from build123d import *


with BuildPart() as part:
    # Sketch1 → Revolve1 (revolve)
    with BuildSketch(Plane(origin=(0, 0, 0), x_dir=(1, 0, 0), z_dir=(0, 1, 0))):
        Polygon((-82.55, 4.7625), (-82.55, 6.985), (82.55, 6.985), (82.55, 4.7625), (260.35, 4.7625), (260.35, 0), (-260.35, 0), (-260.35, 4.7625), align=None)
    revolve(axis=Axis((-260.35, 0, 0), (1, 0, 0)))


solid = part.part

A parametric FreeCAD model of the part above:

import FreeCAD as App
import Part
import Sketcher
Q = App.Units.Quantity

doc = App.newDocument("Part")
params = doc.addObject("Spreadsheet::Sheet", "Params")
for row, (alias, value) in enumerate([
    ("sketch1_width", "7 in"),
    ("sketch1_width2", "20.5 in"),
    ("sketch1_height", "0.1875 in"),
    ("revolution_angle", "360 deg"),
], start=1):
    params.set(f"A{row}", alias)
    params.set(f"B{row}", "=" + value)
    params.setAlias(f"B{row}", alias)

body = doc.addObject("PartDesign::Body", "Body")

sketch1 = body.newObject("Sketcher::SketchObject", "Sketch")
sketch1.AttachmentSupport = (doc.getObject("XZ_Plane"), [""])
sketch1.MapMode = "FlatFace"
sketch1.addGeometry([
    Part.LineSegment(App.Vector(-82.55, -6.985, 0), App.Vector(-82.55, -4.7625, 0)),
    Part.LineSegment(App.Vector(-82.55, -4.7625, 0), App.Vector(-260.35, -4.7625, 0)),
    Part.LineSegment(App.Vector(-260.35, -4.7625, 0), App.Vector(-260.35, 0, 0)),
    Part.LineSegment(App.Vector(-260.35, 0, 0), App.Vector(260.35, 0, 0)),
    Part.LineSegment(App.Vector(260.35, 0, 0), App.Vector(260.35, -4.7625, 0)),
    Part.LineSegment(App.Vector(260.35, -4.7625, 0), App.Vector(82.55, -4.7625, 0)),
    Part.LineSegment(App.Vector(82.55, -4.7625, 0), App.Vector(82.55, -6.985, 0)),
    Part.LineSegment(App.Vector(82.55, -6.985, 0), App.Vector(-82.55, -6.985, 0)),
], False)
sketch1.addConstraint([
    Sketcher.Constraint("Coincident", 0, 2, 1, 1),
    Sketcher.Constraint("Coincident", 1, 2, 2, 1),
    Sketcher.Constraint("Coincident", 2, 2, 3, 1),
    Sketcher.Constraint("Coincident", 3, 2, 4, 1),
    Sketcher.Constraint("Coincident", 4, 2, 5, 1),
    Sketcher.Constraint("Coincident", 5, 2, 6, 1),
    Sketcher.Constraint("Coincident", 6, 2, 7, 1),
    Sketcher.Constraint("Coincident", 7, 2, 0, 1),
    Sketcher.Constraint("Vertical", 0),
    Sketcher.Constraint("Horizontal", 1),
    Sketcher.Constraint("Vertical", 2),
    Sketcher.Constraint("Horizontal", 3),
    Sketcher.Constraint("Vertical", 4),
    Sketcher.Constraint("Horizontal", 5),
    Sketcher.Constraint("Vertical", 6),
    Sketcher.Constraint("Horizontal", 7),
    Sketcher.Constraint("Symmetric", 2, 2, 3, 2, -1, 1),
    Sketcher.Constraint("Symmetric", 0, 2, 5, 2, -2),
    Sketcher.Constraint("DistanceX", 1, 2, 1, 1, Q("7 in")),
    Sketcher.Constraint("DistanceX", 3, 1, 3, 2, Q("20.5 in")),
    Sketcher.Constraint("DistanceY", 2, 1, 2, 2, Q("0.1875 in")),
    Sketcher.Constraint("DistanceY", 0, 1, 0, 2, Q("0.0875 in")),
])
sketch1.setExpression("Constraints[18]", "Params.sketch1_width")
sketch1.setExpression("Constraints[19]", "Params.sketch1_width2")
sketch1.setExpression("Constraints[20]", "Params.sketch1_height")
revolution = body.newObject("PartDesign::Revolution", "Revolution")
revolution.Profile = sketch1
revolution.ReferenceAxis = (sketch1, ["H_Axis"])
revolution.setExpression("Angle", "Params.revolution_angle")

doc.recompute()
